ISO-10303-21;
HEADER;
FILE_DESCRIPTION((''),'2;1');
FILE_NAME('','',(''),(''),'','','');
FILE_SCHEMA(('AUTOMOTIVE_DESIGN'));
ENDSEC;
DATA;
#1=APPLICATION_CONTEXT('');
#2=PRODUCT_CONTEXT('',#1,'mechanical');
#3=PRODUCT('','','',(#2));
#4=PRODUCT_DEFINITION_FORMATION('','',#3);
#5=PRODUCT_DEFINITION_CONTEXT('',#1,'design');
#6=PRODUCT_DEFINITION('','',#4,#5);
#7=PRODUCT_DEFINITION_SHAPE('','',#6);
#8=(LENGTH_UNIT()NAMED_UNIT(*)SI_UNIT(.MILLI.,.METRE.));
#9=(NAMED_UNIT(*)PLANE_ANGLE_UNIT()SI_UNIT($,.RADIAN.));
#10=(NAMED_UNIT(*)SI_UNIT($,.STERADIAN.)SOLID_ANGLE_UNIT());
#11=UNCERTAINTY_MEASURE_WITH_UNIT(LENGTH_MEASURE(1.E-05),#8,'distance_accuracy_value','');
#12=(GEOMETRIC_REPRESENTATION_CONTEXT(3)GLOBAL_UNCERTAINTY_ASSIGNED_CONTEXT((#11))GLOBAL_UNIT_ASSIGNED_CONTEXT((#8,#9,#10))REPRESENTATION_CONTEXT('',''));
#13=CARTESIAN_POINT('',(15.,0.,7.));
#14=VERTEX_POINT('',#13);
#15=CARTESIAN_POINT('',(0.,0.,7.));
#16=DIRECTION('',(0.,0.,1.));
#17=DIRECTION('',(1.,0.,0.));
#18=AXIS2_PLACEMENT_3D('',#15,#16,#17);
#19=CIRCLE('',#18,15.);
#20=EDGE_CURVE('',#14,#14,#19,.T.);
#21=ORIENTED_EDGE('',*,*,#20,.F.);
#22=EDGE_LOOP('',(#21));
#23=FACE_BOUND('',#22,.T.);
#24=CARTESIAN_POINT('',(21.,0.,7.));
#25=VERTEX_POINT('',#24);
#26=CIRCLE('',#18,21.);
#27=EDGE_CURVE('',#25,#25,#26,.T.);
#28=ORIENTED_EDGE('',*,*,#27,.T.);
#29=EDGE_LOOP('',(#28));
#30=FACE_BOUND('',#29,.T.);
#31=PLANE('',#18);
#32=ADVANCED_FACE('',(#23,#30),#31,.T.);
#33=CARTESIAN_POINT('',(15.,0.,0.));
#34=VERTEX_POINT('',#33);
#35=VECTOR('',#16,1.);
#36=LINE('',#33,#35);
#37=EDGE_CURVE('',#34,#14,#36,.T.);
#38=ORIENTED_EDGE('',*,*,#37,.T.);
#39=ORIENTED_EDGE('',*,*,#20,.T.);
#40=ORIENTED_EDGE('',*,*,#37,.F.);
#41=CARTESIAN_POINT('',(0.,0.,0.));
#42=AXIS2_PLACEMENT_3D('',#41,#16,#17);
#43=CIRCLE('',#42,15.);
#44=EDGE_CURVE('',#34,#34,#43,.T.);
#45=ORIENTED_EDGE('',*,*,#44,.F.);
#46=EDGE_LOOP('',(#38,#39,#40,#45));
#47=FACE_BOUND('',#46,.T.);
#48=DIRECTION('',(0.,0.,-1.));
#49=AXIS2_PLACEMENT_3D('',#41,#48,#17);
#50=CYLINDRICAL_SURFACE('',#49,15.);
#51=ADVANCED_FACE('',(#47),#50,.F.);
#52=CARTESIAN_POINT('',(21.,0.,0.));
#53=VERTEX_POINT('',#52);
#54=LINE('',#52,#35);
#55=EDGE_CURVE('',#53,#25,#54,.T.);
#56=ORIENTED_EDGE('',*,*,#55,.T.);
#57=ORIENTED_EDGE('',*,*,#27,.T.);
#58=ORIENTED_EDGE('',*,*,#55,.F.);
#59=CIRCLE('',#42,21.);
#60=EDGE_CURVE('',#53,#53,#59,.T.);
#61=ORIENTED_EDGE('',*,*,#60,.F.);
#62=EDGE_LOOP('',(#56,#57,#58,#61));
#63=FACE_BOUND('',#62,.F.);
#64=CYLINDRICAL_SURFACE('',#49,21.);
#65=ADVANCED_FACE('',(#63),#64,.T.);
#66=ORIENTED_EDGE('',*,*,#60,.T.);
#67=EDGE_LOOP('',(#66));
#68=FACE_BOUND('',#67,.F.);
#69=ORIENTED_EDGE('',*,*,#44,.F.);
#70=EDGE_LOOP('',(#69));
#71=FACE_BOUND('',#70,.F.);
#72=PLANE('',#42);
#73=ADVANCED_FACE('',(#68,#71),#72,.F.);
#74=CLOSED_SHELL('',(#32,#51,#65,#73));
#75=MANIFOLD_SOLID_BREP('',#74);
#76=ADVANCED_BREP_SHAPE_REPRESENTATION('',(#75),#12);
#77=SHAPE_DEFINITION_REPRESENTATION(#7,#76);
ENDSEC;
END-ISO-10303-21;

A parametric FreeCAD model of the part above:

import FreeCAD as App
import Part
import Sketcher

V = App.Vector

doc = App.newDocument("Part")
body = doc.addObject("PartDesign::Body", "Body")

sketch1 = body.newObject("Sketcher::SketchObject", "Sketch")
sketch1.AttachmentSupport = (doc.getObject("XY_Plane"), [""])
sketch1.MapMode = "FlatFace"
sketch1.addGeometry([
    Part.Circle(V(0, 0, 0), V(0, 0, 1), 21),
    Part.Circle(V(0, 0, 0), V(0, 0, 1), 15),
], False)
sketch1.addConstraint([
    Sketcher.Constraint("Coincident", 0, 3, -1, 1),
    Sketcher.Constraint("Coincident", 1, 3, -1, 1),
    Sketcher.Constraint("Diameter", 0, 42.0),
    Sketcher.Constraint("Diameter", 1, 30.0),
])
pad1 = body.newObject("PartDesign::Pad", "Pad")
pad1.Profile = sketch1
pad1.Length = 7

doc.recompute()
